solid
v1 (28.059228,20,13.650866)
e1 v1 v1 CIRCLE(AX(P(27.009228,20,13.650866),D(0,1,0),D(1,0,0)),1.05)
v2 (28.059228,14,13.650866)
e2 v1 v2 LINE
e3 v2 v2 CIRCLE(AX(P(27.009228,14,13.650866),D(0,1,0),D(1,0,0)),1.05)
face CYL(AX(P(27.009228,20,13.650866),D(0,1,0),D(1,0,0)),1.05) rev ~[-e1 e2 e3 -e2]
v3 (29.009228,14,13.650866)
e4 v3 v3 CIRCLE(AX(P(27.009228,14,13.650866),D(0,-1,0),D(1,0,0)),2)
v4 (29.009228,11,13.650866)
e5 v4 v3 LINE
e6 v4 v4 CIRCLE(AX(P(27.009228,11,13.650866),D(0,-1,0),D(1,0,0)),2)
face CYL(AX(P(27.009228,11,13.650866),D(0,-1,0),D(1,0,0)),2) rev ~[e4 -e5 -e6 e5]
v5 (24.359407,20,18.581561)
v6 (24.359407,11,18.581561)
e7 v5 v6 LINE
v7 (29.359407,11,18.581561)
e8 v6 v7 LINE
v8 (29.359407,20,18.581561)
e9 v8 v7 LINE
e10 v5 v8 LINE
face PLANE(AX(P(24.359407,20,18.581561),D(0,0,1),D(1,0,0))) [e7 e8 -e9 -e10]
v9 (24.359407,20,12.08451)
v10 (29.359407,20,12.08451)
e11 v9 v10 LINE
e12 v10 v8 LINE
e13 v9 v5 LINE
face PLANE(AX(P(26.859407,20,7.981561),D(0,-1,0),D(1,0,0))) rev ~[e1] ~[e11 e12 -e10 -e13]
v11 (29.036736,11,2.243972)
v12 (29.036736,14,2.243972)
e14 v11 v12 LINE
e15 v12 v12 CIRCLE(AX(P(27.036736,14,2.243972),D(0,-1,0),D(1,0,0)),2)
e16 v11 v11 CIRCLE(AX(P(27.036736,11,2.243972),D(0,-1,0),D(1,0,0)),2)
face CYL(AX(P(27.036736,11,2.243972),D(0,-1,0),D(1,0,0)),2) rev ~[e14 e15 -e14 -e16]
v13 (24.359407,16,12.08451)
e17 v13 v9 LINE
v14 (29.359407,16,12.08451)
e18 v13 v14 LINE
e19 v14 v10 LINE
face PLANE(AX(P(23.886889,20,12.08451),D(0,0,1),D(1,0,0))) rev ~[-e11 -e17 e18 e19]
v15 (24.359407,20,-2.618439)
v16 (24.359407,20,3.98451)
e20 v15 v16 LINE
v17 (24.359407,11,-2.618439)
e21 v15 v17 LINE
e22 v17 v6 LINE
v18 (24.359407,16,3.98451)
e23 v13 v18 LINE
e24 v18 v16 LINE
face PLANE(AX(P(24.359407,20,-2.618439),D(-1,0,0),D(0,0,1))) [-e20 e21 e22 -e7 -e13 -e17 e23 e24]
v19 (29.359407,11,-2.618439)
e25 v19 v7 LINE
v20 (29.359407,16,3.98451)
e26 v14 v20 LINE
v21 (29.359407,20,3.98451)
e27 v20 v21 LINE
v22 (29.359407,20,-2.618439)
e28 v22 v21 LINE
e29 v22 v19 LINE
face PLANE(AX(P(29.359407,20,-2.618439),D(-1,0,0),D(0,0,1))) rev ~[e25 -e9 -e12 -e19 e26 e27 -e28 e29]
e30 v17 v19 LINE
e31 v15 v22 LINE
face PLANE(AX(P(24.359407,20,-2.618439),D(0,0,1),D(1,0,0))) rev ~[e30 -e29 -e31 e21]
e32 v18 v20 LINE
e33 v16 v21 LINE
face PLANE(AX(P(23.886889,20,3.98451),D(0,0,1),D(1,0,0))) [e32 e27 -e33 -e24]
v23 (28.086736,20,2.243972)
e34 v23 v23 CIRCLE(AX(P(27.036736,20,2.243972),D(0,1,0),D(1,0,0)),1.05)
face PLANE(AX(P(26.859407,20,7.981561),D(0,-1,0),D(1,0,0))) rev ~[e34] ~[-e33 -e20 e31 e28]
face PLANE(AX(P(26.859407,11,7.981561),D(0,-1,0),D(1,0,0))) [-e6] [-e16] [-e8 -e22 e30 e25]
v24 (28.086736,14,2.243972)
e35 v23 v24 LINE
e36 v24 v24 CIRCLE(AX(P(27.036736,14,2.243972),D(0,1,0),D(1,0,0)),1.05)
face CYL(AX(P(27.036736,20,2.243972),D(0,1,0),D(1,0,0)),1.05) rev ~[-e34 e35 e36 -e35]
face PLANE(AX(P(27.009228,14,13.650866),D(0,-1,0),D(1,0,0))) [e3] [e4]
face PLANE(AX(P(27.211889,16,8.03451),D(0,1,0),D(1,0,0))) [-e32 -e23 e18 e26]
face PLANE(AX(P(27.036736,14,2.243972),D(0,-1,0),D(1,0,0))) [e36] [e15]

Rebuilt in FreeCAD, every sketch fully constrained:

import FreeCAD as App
import Part
import Sketcher
from FreeCAD import Vector


def add_polygon(sketch, points):
    """Adds a closed chain of lines whose ends are joined by coincident constraints."""
    first, n = sketch.GeometryCount, len(points)
    for a, b in zip(points, points[1:] + points[:1]):
        sketch.addGeometry(Part.LineSegment(App.Vector(*a, 0), App.Vector(*b, 0)), False)
    for i in range(n):
        sketch.addConstraint(Sketcher.Constraint("Coincident", first + i, 2, first + (i + 1) % n, 1))

doc = App.newDocument("Part")
body = doc.addObject("PartDesign::Body", "Body")

# Sketch on XZ plane
sketch1 = body.newObject("Sketcher::SketchObject", "Sketch")
sketch1.AttachmentSupport = (doc.getObject("XZ_Plane"), [""])
sketch1.MapMode = "FlatFace"
add_polygon(sketch1, [(24.359407, 18.581561), (24.359407, -2.618439), (29.359407, -2.618439), (29.359407, 18.581561)])  # lines 0-3
sketch1.addConstraint([
    Sketcher.Constraint("Vertical", 0),
    Sketcher.Constraint("Horizontal", 1),
    Sketcher.Constraint("Vertical", 2),
    Sketcher.Constraint("Horizontal", 3),
    Sketcher.Constraint("DistanceX", 1, 1, 1, 2, 5.0),
    Sketcher.Constraint("DistanceY", 0, 2, 0, 1, 21.2),
    Sketcher.Constraint("DistanceY", 0, 2, -1, 1, 2.618439),
    Sketcher.Constraint("DistanceX", -1, 1, 0, 2, 24.359407),
])
pad1 = body.newObject("PartDesign::Pad", "Pad")
pad1.Profile = sketch1
pad1.Length = 9

# Sketch on XZ plane
sketch2 = body.newObject("Sketcher::SketchObject", "Sketch001")
sketch2.AttachmentSupport = (doc.getObject("XZ_Plane"), [""])
sketch2.MapMode = "FlatFace"
add_polygon(sketch2, [(23.886889, 3.98451), (23.886889, 12.08451), (30.536889, 12.08451), (30.536889, 3.98451)])  # lines 0-3
sketch2.addConstraint([
    Sketcher.Constraint("Vertical", 0),
    Sketcher.Constraint("Horizontal", 1),
    Sketcher.Constraint("Vertical", 2),
    Sketcher.Constraint("Horizontal", 3),
    Sketcher.Constraint("DistanceY", 0, 1, 0, 2, 8.1),
    Sketcher.Constraint("DistanceX", 1, 1, 1, 2, 6.65),
    Sketcher.Constraint("DistanceX", -1, 1, 0, 2, 23.886889),
    Sketcher.Constraint("DistanceY", -1, 1, 0, 2, 12.08451),
])
pocket1 = body.newObject("PartDesign::Pocket", "Pocket")
pocket1.Profile = sketch2
pocket1.Length = 4
pocket1.Reversed = True

# Sketch on XZ plane
sketch3 = body.newObject("Sketcher::SketchObject", "Sketch002")
sketch3.AttachmentSupport = (doc.getObject("XZ_Plane"), [""])
sketch3.MapMode = "FlatFace"
sketch3.addGeometry([
    Part.Circle(Vector(27.009228, 13.650866, 0), Vector(0, 0, 1), 1.05),
    Part.Circle(Vector(27.036736, 2.243972, 0), Vector(0, 0, 1), 1.05),
], False)
sketch3.addConstraint([
    Sketcher.Constraint("Equal", 0, 1),
    Sketcher.Constraint("Diameter", 0, 2.1),
    Sketcher.Constraint("DistanceX", -1, 1, 0, 3, 27.009228),
    Sketcher.Constraint("DistanceY", -1, 1, 1, 3, 2.243972),
    Sketcher.Constraint("DistanceX", 0, 3, 1, 3, 0.027508),
    Sketcher.Constraint("DistanceY", -1, 1, 0, 3, 13.650866),
])
pocket2 = body.newObject("PartDesign::Pocket", "Pocket001")
pocket2.Profile = sketch3
pocket2.Length = 10
pocket2.Reversed = True

# Sketch on XZ plane
sketch4 = body.newObject("Sketcher::SketchObject", "Sketch003")
sketch4.AttachmentSupport = (doc.getObject("XZ_Plane"), [""])
sketch4.MapMode = "FlatFace"
sketch4.AttachmentOffset = App.Placement(Vector(0, 0, 9), App.Rotation())
sketch4.addGeometry([
    Part.Circle(Vector(27.009228, 13.650866, 0), Vector(0, 0, 1), 2),
    Part.Circle(Vector(27.036736, 2.243972, 0), Vector(0, 0, 1), 2),
], False)
sketch4.addConstraint([
    Sketcher.Constraint("Equal", 0, 1),
    Sketcher.Constraint("Diameter", 0, 4.0),
    Sketcher.Constraint("DistanceX", -1, 1, 0, 3, 27.009228),
    Sketcher.Constraint("DistanceY", -1, 1, 1, 3, 2.243972),
    Sketcher.Constraint("DistanceX", 0, 3, 1, 3, 0.027508),
    Sketcher.Constraint("DistanceY", -1, 1, 0, 3, 13.650866),
])
pocket3 = body.newObject("PartDesign::Pocket", "Pocket002")
pocket3.Profile = sketch4
pocket3.Length = 3
body2 = doc.addObject("PartDesign::Body", "Body001")
doc.recompute()

body.Placement = App.Placement(Vector(0, 20, 0), App.Rotation(Vector(0, 0, 1), 0))
boolean = body2.newObject("PartDesign::Boolean", "Boolean")
boolean.Type = "Fuse"
boolean.addObjects([body])

doc.recompute()
